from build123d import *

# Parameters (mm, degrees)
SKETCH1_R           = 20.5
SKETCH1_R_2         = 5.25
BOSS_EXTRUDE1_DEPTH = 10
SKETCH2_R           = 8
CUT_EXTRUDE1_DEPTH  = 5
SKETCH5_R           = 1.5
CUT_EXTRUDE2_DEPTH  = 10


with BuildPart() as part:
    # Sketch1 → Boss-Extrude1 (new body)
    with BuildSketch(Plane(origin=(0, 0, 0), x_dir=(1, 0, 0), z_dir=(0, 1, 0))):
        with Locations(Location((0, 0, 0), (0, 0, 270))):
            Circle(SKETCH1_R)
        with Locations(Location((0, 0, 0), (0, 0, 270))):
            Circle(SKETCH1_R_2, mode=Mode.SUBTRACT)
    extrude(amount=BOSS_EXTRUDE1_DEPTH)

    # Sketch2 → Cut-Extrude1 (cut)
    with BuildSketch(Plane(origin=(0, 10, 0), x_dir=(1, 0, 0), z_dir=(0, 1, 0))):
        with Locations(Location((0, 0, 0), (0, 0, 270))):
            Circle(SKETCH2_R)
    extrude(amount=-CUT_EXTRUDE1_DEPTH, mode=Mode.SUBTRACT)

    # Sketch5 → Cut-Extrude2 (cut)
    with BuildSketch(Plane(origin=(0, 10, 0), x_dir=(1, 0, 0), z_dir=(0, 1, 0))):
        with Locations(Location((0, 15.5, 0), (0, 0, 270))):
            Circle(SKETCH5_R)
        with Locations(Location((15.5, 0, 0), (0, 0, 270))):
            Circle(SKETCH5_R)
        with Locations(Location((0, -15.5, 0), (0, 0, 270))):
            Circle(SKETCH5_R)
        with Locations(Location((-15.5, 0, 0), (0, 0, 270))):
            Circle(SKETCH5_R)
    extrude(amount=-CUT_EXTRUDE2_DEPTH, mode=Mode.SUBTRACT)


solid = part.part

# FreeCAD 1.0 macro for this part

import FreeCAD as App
import Part
import Sketcher

V = App.Vector
Q = App.Units.Quantity

doc = App.newDocument("Part")
body = doc.addObject("PartDesign::Body", "Body")

# Sketch on XZ plane
sketch1 = body.newObject("Sketcher::SketchObject", "Sketch")
sketch1.AttachmentSupport = (doc.getObject("XZ_Plane"), [""])
sketch1.MapMode = "FlatFace"
sketch1.addGeometry(Part.Circle(V(0, 0, 0), V(0, 0, 1), 20), False)
sketch1.addGeometry(Part.Circle(V(0, 0, 0), V(0, 0, 1), 5), False)
sketch1.addConstraint(Sketcher.Constraint("Coincident", 0, 3, -1, 1))
sketch1.addConstraint(Sketcher.Constraint("Coincident", 1, 3, -1, 1))
sketch1.addConstraint(Sketcher.Constraint("Diameter", 0, Q("41 mm")))
sketch1.addConstraint(Sketcher.Constraint("Diameter", 1, Q("10.5 mm")))
pad1 = body.newObject("PartDesign::Pad", "Pad")
pad1.Profile = sketch1
pad1.Length = 10
pad1.Reversed = True

# Sketch on XZ plane
sketch2 = body.newObject("Sketcher::SketchObject", "Sketch001")
sketch2.AttachmentSupport = (doc.getObject("XZ_Plane"), [""])
sketch2.MapMode = "FlatFace"
sketch2.AttachmentOffset = App.Placement(V(0, 0, -10), App.Rotation())
sketch2.addGeometry(Part.Circle(V(0, 0, 0), V(0, 0, 1), 8), False)
sketch2.addConstraint(Sketcher.Constraint("Coincident", 0, 3, -1, 1))
sketch2.addConstraint(Sketcher.Constraint("Diameter", 0, Q("16 mm")))
pocket1 = body.newObject("PartDesign::Pocket", "Pocket")
pocket1.Profile = sketch2
pocket1.Length = 5
pocket1.Reversed = True

# Sketch on XZ plane
sketch3 = body.newObject("Sketcher::SketchObject", "Sketch002")
sketch3.AttachmentSupport = (doc.getObject("XZ_Plane"), [""])
sketch3.MapMode = "FlatFace"
sketch3.AttachmentOffset = App.Placement(V(0, 0, -10), App.Rotation())
sketch3.addGeometry(Part.Circle(V(0, -15.5, 0), V(0, 0, 1), 1.5), False)
sketch3.addGeometry(Part.Circle(V(15.5, 0, 0), V(0, 0, 1), 1.5), False)
sketch3.addGeometry(Part.Circle(V(0, 15.5, 0), V(0, 0, 1), 1.5), False)
sketch3.addGeometry(Part.Circle(V(-15.5, 0, 0), V(0, 0, 1), 1.5), False)
sketch3.addConstraint(Sketcher.Constraint("Equal", 0, 1))
sketch3.addConstraint(Sketcher.Constraint("Equal", 1, 2))
sketch3.addConstraint(Sketcher.Constraint("Equal", 2, 3))
sketch3.addConstraint(Sketcher.Constraint("Symmetric", 0, 3, 2, 3, -1, 1))
sketch3.addConstraint(Sketcher.Constraint("Symmetric", 1, 3, 3, 3, -1, 1))
sketch3.addConstraint(Sketcher.Constraint("PointOnObject", 0, 3, -2))
sketch3.addConstraint(Sketcher.Constraint("PointOnObject", 1, 3, -1))
sketch3.addConstraint(Sketcher.Constraint("Diameter", 0, Q("3 mm")))
sketch3.addConstraint(Sketcher.Constraint("DistanceY", 0, 3, 2, 3, Q("31 mm")))
sketch3.addConstraint(Sketcher.Constraint("DistanceX", 3, 3, 1, 3, Q("31 mm")))
pocket2 = body.newObject("PartDesign::Pocket", "Pocket001")
pocket2.Profile = sketch3
pocket2.Length = 10
pocket2.Reversed = True

doc.recompute()
